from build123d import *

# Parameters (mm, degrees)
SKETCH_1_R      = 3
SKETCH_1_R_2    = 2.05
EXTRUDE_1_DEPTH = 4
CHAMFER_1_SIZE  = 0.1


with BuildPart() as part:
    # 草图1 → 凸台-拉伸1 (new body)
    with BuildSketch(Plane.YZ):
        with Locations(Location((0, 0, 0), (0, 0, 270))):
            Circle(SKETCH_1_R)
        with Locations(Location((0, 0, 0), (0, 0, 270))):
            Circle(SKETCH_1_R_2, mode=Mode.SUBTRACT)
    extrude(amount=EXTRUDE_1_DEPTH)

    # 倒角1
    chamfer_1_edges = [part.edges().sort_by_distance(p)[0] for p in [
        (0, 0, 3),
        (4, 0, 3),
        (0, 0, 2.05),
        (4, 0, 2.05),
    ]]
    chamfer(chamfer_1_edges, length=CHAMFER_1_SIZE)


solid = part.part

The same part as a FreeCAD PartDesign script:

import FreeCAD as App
import Part
import Sketcher

V = App.Vector
Q = App.Units.Quantity


def edges_at(feature, points):
    """Names of the edges that pass closest to the given points."""
    edges = feature.Shape.Edges
    near = lambda p: min(range(len(edges)), key=lambda i: edges[i].distToShape(Part.Vertex(*p))[0])
    return sorted({f"Edge{near(p) + 1}" for p in points})

doc = App.newDocument("Part")
body = doc.addObject("PartDesign::Body", "Body")

# Sketch on YZ plane
sketch1 = doc.addObject("Sketcher::SketchObject", "Sketch")
body.addObject(sketch1)
sketch1.AttachmentSupport = (doc.YZ_Plane, [""])
sketch1.MapMode = "FlatFace"
sketch1.addGeometry([
    Part.Circle(V(0, 0, 0), V(0, 0, 1), 3),
    Part.Circle(V(0, 0, 0), V(0, 0, 1), 2.05),
], False)
sketch1.addConstraint([
    Sketcher.Constraint("Coincident", 0, 3, -1, 1),
    Sketcher.Constraint("Coincident", 1, 3, -1, 1),
    Sketcher.Constraint("Diameter", 0, Q("6 mm")),
    Sketcher.Constraint("Diameter", 1, Q("4.1 mm")),
])
pad1 = doc.addObject("PartDesign::Pad", "Pad")
body.addObject(pad1)
pad1.Profile = sketch1
pad1.Length = 4
doc.recompute()

chamfer = doc.addObject("PartDesign::Chamfer", "Chamfer")
body.addObject(chamfer)
chamfer.Base = (pad1, edges_at(pad1, [
    (0, 0, 3),
    (4, 0, 3),
    (0, 0, 2.05),
    (4, 0, 2.05),
]))
chamfer.Size = 0.1

doc.recompute()
